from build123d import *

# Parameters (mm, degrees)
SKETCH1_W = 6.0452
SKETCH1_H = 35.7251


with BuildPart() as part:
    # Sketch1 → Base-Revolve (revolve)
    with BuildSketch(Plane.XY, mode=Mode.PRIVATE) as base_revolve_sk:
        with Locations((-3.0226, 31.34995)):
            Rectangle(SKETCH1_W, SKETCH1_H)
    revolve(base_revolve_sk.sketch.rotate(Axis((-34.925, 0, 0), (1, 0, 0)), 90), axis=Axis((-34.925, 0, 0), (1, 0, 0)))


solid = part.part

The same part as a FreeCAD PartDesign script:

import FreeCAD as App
import Part
import Sketcher
from FreeCAD import Vector
Q = App.Units.Quantity

doc = App.newDocument("Part")
params = doc.addObject("Spreadsheet::Sheet", "Params")
for row, (alias, value) in enumerate([
    ("sketch1_width", "0.238 in"),
    ("revolution_angle", "360 deg"),
], start=1):
    params.set(f"A{row}", alias)
    params.set(f"B{row}", "=" + value)
    params.setAlias(f"B{row}", alias)

body = doc.addObject("PartDesign::Body", "Body")

# Sketch on XY plane
sketch1 = body.newObject("Sketcher::SketchObject", "Sketch")
sketch1.AttachmentSupport = (doc.getObject("XY_Plane"), [""])
sketch1.MapMode = "FlatFace"
sketch1.addGeometry([
    Part.LineSegment(Vector(-6, 49, 0), Vector(-6, 13, 0)),
    Part.LineSegment(Vector(-6, 13, 0), Vector(0, 13, 0)),
    Part.LineSegment(Vector(0, 13, 0), Vector(0, 49, 0)),
    Part.LineSegment(Vector(0, 49, 0), Vector(-6, 49, 0)),
], False)
sketch1.addConstraint([
    Sketcher.Constraint("Coincident", 0, 2, 1, 1),
    Sketcher.Constraint("Coincident", 1, 2, 2, 1),
    Sketcher.Constraint("Coincident", 2, 2, 3, 1),
    Sketcher.Constraint("Coincident", 3, 2, 0, 1),
    Sketcher.Constraint("Vertical", 0),
    Sketcher.Constraint("Horizontal", 1),
    Sketcher.Constraint("Vertical", 2),
    Sketcher.Constraint("Horizontal", 3),
    Sketcher.Constraint("PointOnObject", 1, 2, -2),
    Sketcher.Constraint("DistanceX", 1, 1, 1, 2, Q("0.238 in")),
    Sketcher.Constraint("DistanceY", 0, 2, 0, 1, Q("1.4065 in")),
    Sketcher.Constraint("DistanceY", -1, 1, 0, 2, Q("0.531 in")),
])
sketch1.setExpression("Constraints[9]", "Params.sketch1_width")
revolution = body.newObject("PartDesign::Revolution", "Revolution")
revolution.Profile = sketch1
revolution.ReferenceAxis = (sketch1, ["H_Axis"])
revolution.setExpression("Angle", "Params.revolution_angle")

doc.recompute()
